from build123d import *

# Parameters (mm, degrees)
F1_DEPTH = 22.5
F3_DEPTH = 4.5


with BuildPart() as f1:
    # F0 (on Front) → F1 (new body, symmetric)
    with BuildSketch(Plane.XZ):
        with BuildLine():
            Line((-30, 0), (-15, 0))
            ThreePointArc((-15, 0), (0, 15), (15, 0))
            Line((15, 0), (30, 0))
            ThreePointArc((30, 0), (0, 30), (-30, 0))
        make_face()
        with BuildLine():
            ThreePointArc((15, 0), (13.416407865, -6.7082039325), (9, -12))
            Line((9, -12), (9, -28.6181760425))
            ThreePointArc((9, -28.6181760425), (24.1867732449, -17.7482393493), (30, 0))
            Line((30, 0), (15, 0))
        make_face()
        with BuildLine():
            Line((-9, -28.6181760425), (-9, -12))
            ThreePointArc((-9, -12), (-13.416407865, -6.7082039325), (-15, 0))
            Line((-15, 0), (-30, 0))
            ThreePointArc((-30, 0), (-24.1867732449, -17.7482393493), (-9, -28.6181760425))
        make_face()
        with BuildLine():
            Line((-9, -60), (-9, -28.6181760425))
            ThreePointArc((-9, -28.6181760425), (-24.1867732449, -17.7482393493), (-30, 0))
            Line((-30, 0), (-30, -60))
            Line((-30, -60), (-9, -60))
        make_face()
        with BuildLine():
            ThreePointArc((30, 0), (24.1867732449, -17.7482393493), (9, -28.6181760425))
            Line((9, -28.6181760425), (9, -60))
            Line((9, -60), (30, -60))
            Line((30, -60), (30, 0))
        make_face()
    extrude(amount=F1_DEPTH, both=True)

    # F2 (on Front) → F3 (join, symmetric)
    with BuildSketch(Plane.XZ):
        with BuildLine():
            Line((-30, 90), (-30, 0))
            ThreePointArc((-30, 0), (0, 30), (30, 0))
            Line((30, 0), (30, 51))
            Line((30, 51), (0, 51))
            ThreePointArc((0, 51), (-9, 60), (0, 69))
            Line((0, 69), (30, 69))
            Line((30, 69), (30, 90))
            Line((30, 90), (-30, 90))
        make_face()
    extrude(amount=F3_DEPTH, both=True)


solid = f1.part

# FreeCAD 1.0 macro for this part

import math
import FreeCAD as App
import Part
import Sketcher
Q = App.Units.Quantity

doc = App.newDocument("Part")
body = doc.addObject("PartDesign::Body", "Body")

# Sketch on XZ plane
sketch1 = body.newObject("Sketcher::SketchObject", "Sketch")
sketch1.AttachmentSupport = (doc.getObject("XZ_Plane"), [""])
sketch1.MapMode = "FlatFace"
sketch1.addGeometry([
    Part.LineSegment(App.Vector(9, -12, 0), App.Vector(9, -60, 0)),  # 0
    Part.LineSegment(App.Vector(9, -60, 0), App.Vector(30, -60, 0)),  # 1
    Part.LineSegment(App.Vector(30, -60, 0), App.Vector(30, 0, 0)),  # 2
    Part.ArcOfCircle(Part.Circle(App.Vector(0, 0, 0), App.Vector(0, 0, 1), 30), math.radians(0), math.radians(180)),  # 3
    Part.LineSegment(App.Vector(-30, 0, 0), App.Vector(-30, -60, 0)),  # 4
    Part.LineSegment(App.Vector(-30, -60, 0), App.Vector(-9, -60, 0)),  # 5
    Part.LineSegment(App.Vector(-9, -60, 0), App.Vector(-9, -12, 0)),  # 6
    Part.ArcOfCircle(Part.Circle(App.Vector(0, 0, 0), App.Vector(0, 0, 1), 15), math.radians(-53.130102), math.radians(233.130102)),  # 7
], False)
sketch1.addConstraint([
    Sketcher.Constraint("Coincident", 0, 2, 1, 1),
    Sketcher.Constraint("Coincident", 1, 2, 2, 1),
    Sketcher.Constraint("Tangent", 2, 2, 3, 1),
    Sketcher.Constraint("Tangent", 3, 2, 4, 1),
    Sketcher.Constraint("Coincident", 4, 2, 5, 1),
    Sketcher.Constraint("Coincident", 5, 2, 6, 1),
    Sketcher.Constraint("Coincident", 6, 2, 7, 2),
    Sketcher.Constraint("Coincident", 7, 1, 0, 1),
    Sketcher.Constraint("Vertical", 0),
    Sketcher.Constraint("Horizontal", 1),
    Sketcher.Constraint("Vertical", 2),
    Sketcher.Constraint("Vertical", 4),
    Sketcher.Constraint("Horizontal", 5),
    Sketcher.Constraint("Vertical", 6),
    Sketcher.Constraint("Coincident", 3, 3, -1, 1),
    Sketcher.Constraint("Coincident", 7, 3, -1, 1),
    Sketcher.Constraint("Symmetric", 0, 2, 5, 2, -2),
    Sketcher.Constraint("Radius", 3, Q("30 mm")),
    Sketcher.Constraint("Radius", 7, Q("15 mm")),
    Sketcher.Constraint("DistanceX", 1, 1, 1, 2, Q("21 mm")),
    Sketcher.Constraint("DistanceY", 0, 2, 0, 1, Q("48 mm")),
])
pad1 = body.newObject("PartDesign::Pad", "Pad")
pad1.Profile = sketch1
pad1.Length = 45
pad1.Midplane = True

# Sketch on XZ plane
sketch2 = body.newObject("Sketcher::SketchObject", "Sketch001")
sketch2.AttachmentSupport = (doc.getObject("XZ_Plane"), [""])
sketch2.MapMode = "FlatFace"
sketch2.addGeometry([
    Part.LineSegment(App.Vector(-30, 90, 0), App.Vector(-30, 0, 0)),  # 0
    Part.ArcOfCircle(Part.Circle(App.Vector(0, 0, 0), App.Vector(0, 0, 1), 30), math.radians(0), math.radians(180)),  # 1
    Part.LineSegment(App.Vector(30, 0, 0), App.Vector(30, 51, 0)),  # 2
    Part.LineSegment(App.Vector(30, 51, 0), App.Vector(0, 51, 0)),  # 3
    Part.ArcOfCircle(Part.Circle(App.Vector(0, 60, 0), App.Vector(0, 0, 1), 9), math.radians(90), math.radians(270)),  # 4
    Part.LineSegment(App.Vector(0, 69, 0), App.Vector(30, 69, 0)),  # 5
    Part.LineSegment(App.Vector(30, 69, 0), App.Vector(30, 90, 0)),  # 6
    Part.LineSegment(App.Vector(30, 90, 0), App.Vector(-30, 90, 0)),  # 7
], False)
sketch2.addConstraint([
    Sketcher.Constraint("Tangent", 0, 2, 1, 2),
    Sketcher.Constraint("Tangent", 1, 1, 2, 1),
    Sketcher.Constraint("Coincident", 2, 2, 3, 1),
    Sketcher.Constraint("Tangent", 3, 2, 4, 2),
    Sketcher.Constraint("Tangent", 4, 1, 5, 1),
    Sketcher.Constraint("Coincident", 5, 2, 6, 1),
    Sketcher.Constraint("Coincident", 6, 2, 7, 1),
    Sketcher.Constraint("Coincident", 7, 2, 0, 1),
    Sketcher.Constraint("Vertical", 0),
    Sketcher.Constraint("Vertical", 2),
    Sketcher.Constraint("Horizontal", 3),
    Sketcher.Constraint("Horizontal", 5),
    Sketcher.Constraint("Vertical", 6),
    Sketcher.Constraint("Horizontal", 7),
    Sketcher.Constraint("Coincident", 1, 3, -1, 1),
    Sketcher.Constraint("PointOnObject", 4, 3, -2),
    Sketcher.Constraint("Vertical", 2, 2, 5, 2),
    Sketcher.Constraint("Radius", 1, Q("30 mm")),
    Sketcher.Constraint("Radius", 4, Q("9 mm")),
    Sketcher.Constraint("DistanceY", 0, 2, 0, 1, Q("90 mm")),
    Sketcher.Constraint("DistanceY", 2, 1, 2, 2, Q("51 mm")),
])
pad2 = body.newObject("PartDesign::Pad", "Pad001")
pad2.Profile = sketch2
pad2.Length = 9
pad2.Midplane = True

doc.recompute()
